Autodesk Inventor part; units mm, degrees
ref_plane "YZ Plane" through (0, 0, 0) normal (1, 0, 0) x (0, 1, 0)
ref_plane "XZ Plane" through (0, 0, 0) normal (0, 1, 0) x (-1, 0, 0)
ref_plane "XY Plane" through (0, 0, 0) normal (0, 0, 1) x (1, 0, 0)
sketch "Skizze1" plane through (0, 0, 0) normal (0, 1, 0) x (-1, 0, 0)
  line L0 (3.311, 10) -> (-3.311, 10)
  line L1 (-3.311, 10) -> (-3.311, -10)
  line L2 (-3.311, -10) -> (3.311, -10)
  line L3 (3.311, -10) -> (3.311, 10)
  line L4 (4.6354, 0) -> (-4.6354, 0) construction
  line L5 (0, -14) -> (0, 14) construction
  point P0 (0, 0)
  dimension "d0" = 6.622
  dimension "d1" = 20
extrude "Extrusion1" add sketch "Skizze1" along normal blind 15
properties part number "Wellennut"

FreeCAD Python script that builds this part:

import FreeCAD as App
import Part
import Sketcher


def add_polygon(sketch, points):
    """Adds a closed chain of lines whose ends are joined by coincident constraints."""
    first, n = sketch.GeometryCount, len(points)
    for a, b in zip(points, points[1:] + points[:1]):
        sketch.addGeometry(Part.LineSegment(App.Vector(*a, 0), App.Vector(*b, 0)), False)
    for i in range(n):
        sketch.addConstraint(Sketcher.Constraint("Coincident", first + i, 2, first + (i + 1) % n, 1))

doc = App.newDocument("Part")
params = doc.addObject("Spreadsheet::Sheet", "Params")
for row, (alias, value) in enumerate([
    ("sketch1_height", "20 mm"),
    ("pad1_length", "15 mm"),
], start=1):
    params.set(f"A{row}", alias)
    params.set(f"B{row}", "=" + value)
    params.setAlias(f"B{row}", alias)

body = doc.addObject("PartDesign::Body", "Body")

# Sketch on XZ plane
sketch1 = body.newObject("Sketcher::SketchObject", "Sketch")
sketch1.AttachmentSupport = (doc.getObject("XZ_Plane"), [""])
sketch1.MapMode = "FlatFace"
add_polygon(sketch1, [(-3, -10), (-3, 10), (3, 10), (3, -10)])  # lines 0-3
sketch1.addConstraint([
    Sketcher.Constraint("Vertical", 0),
    Sketcher.Constraint("Horizontal", 1),
    Sketcher.Constraint("Vertical", 2),
    Sketcher.Constraint("Horizontal", 3),
    Sketcher.Constraint("Symmetric", 0, 2, 2, 2, -1, 1),
    Sketcher.Constraint("DistanceY", 0, 1, 0, 2, 20.0),
    Sketcher.Constraint("DistanceX", 1, 1, 1, 2, 6.622),
])
sketch1.setExpression("Constraints[9]", "Params.sketch1_height")
pad1 = body.newObject("PartDesign::Pad", "Pad")
pad1.Profile = sketch1
pad1.setExpression("Length", "Params.pad1_length")
pad1.Reversed = True

doc.recompute()
